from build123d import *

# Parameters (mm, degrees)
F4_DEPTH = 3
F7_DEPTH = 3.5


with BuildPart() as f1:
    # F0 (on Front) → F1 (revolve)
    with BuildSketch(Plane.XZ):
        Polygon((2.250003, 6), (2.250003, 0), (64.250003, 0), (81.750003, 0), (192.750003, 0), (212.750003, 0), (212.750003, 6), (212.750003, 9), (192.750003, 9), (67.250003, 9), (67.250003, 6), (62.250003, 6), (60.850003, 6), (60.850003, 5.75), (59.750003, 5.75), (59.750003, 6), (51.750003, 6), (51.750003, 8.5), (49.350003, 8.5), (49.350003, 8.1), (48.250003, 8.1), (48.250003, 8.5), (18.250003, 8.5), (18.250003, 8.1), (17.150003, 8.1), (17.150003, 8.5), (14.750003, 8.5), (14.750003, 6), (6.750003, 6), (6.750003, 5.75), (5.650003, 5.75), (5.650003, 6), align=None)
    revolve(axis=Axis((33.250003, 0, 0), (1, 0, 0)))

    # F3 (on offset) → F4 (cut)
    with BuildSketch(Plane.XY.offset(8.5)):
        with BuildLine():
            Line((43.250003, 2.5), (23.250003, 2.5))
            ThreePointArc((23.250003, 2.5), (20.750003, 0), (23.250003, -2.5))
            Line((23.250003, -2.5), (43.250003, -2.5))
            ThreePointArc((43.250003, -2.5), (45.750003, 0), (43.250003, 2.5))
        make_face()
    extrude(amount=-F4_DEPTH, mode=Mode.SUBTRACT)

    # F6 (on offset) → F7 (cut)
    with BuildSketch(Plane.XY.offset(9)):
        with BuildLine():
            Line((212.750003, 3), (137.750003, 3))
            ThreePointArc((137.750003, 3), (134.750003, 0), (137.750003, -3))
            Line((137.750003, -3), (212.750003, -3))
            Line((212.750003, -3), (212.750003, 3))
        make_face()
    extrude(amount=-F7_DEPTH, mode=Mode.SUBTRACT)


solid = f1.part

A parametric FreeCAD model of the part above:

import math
import FreeCAD as App
import Part
import Sketcher
from FreeCAD import Vector
Q = App.Units.Quantity


def add_polygon(sketch, points):
    """Adds a closed chain of lines whose ends are joined by coincident constraints."""
    first, n = sketch.GeometryCount, len(points)
    for a, b in zip(points, points[1:] + points[:1]):
        sketch.addGeometry(Part.LineSegment(App.Vector(*a, 0), App.Vector(*b, 0)), False)
    for i in range(n):
        sketch.addConstraint(Sketcher.Constraint("Coincident", first + i, 2, first + (i + 1) % n, 1))

doc = App.newDocument("Part")
body = doc.addObject("PartDesign::Body", "Body")

# Sketch on XZ plane
sketch1 = body.newObject("Sketcher::SketchObject", "Sketch")
sketch1.AttachmentSupport = (doc.getObject("XZ_Plane"), [""])
sketch1.MapMode = "FlatFace"
add_polygon(sketch1, [(2.250003, 6), (2.250003, 0), (212.750003, 0), (212.750003, 9), (67.250003, 9), (67.250003, 6), (60.850003, 6), (60.850003, 5.75), (59.750003, 5.75), (59.750003, 6), (51.750003, 6), (51.750003, 8.5), (49.350003, 8.5), (49.350003, 8.1), (48.250003, 8.1), (48.250003, 8.5), (18.250003, 8.5), (18.250003, 8.1), (17.150003, 8.1), (17.150003, 8.5), (14.750003, 8.5), (14.750003, 6), (6.750003, 6), (6.750003, 5.75), (5.650003, 5.75), (5.650003, 6)])  # lines 0-25
sketch1.addConstraint([
    Sketcher.Constraint("Vertical", 0),
    Sketcher.Constraint("Horizontal", 1),
    Sketcher.Constraint("Vertical", 2),
    Sketcher.Constraint("Horizontal", 3),
    Sketcher.Constraint("Vertical", 4),
    Sketcher.Constraint("Horizontal", 5),
    Sketcher.Constraint("Vertical", 6),
    Sketcher.Constraint("Horizontal", 7),
    Sketcher.Constraint("Vertical", 8),
    Sketcher.Constraint("Horizontal", 9),
    Sketcher.Constraint("Vertical", 10),
    Sketcher.Constraint("Horizontal", 11),
    Sketcher.Constraint("Vertical", 12),
    Sketcher.Constraint("Horizontal", 13),
    Sketcher.Constraint("Vertical", 14),
    Sketcher.Constraint("Horizontal", 15),
    Sketcher.Constraint("Vertical", 16),
    Sketcher.Constraint("Horizontal", 17),
    Sketcher.Constraint("Vertical", 18),
    Sketcher.Constraint("Horizontal", 19),
    Sketcher.Constraint("Vertical", 20),
    Sketcher.Constraint("Horizontal", 21),
    Sketcher.Constraint("Vertical", 22),
    Sketcher.Constraint("Horizontal", 23),
    Sketcher.Constraint("Vertical", 24),
    Sketcher.Constraint("Horizontal", 25),
    Sketcher.Constraint("PointOnObject", 0, 2, -1),
    Sketcher.Constraint("Horizontal", 5, 2, 8, 2),
    Sketcher.Constraint("Horizontal", 11, 2, 14, 2),
    Sketcher.Constraint("Horizontal", 13, 2, 16, 2),
    Sketcher.Constraint("Horizontal", 15, 2, 18, 2),
    Sketcher.Constraint("Horizontal", 9, 2, 20, 2),
    Sketcher.Constraint("Horizontal", 7, 2, 22, 2),
    Sketcher.Constraint("Horizontal", 21, 2, 24, 2),
    Sketcher.Constraint("Equal", 7, 13),
    Sketcher.Constraint("Equal", 13, 17),
    Sketcher.Constraint("Equal", 11, 19),
    Sketcher.Constraint("Equal", 9, 21),
    Sketcher.Constraint("Equal", 17, 23),
    Sketcher.Constraint("DistanceX", 9, 2, 9, 1, Q("8 mm")),
    Sketcher.Constraint("DistanceX", 15, 2, 15, 1, Q("30 mm")),
    Sketcher.Constraint("DistanceY", 0, 2, 0, 1, Q("6 mm")),
    Sketcher.Constraint("DistanceY", 2, 1, 2, 2, Q("9 mm")),
    Sketcher.Constraint("DistanceX", 1, 1, 1, 2, Q("210.5 mm")),
    Sketcher.Constraint("DistanceX", 3, 2, 3, 1, Q("145.5 mm")),
    Sketcher.Constraint("DistanceX", 5, 2, 5, 1, Q("6.4 mm")),
    Sketcher.Constraint("DistanceX", 7, 2, 7, 1, Q("1.1 mm")),
    Sketcher.Constraint("DistanceX", 11, 2, 11, 1, Q("2.4 mm")),
    Sketcher.Constraint("DistanceY", 10, 1, 10, 2, Q("2.5 mm")),
    Sketcher.Constraint("DistanceY", 12, 2, 12, 1, Q("0.4 mm")),
    Sketcher.Constraint("DistanceY", 6, 2, 6, 1, Q("0.25 mm")),
    Sketcher.Constraint("DistanceX", -1, 1, 0, 2, Q("2.250003 mm")),
])
revolution = body.newObject("PartDesign::Revolution", "Revolution")
revolution.Profile = sketch1
revolution.ReferenceAxis = (sketch1, ["H_Axis"])
revolution.Angle = 360

# Sketch on XY plane
sketch2 = body.newObject("Sketcher::SketchObject", "Sketch001")
sketch2.AttachmentSupport = (doc.getObject("XY_Plane"), [""])
sketch2.MapMode = "FlatFace"
sketch2.AttachmentOffset = App.Placement(Vector(0, 0, 8.5), App.Rotation())
sketch2.addGeometry([
    Part.LineSegment(Vector(43.250003, 2.5, 0), Vector(23.250003, 2.5, 0)),
    Part.ArcOfCircle(Part.Circle(Vector(23.250003, 0, 0), Vector(0, 0, 1), 2.5), math.radians(90), math.radians(270)),
    Part.LineSegment(Vector(23.250003, -2.5, 0), Vector(43.250003, -2.5, 0)),
    Part.ArcOfCircle(Part.Circle(Vector(43.250003, 0, 0), Vector(0, 0, 1), 2.5), math.radians(-90), math.radians(90)),
], False)
sketch2.addConstraint([
    Sketcher.Constraint("Tangent", 0, 2, 1, 1),
    Sketcher.Constraint("Tangent", 1, 2, 2, 1),
    Sketcher.Constraint("Tangent", 2, 2, 3, 1),
    Sketcher.Constraint("Tangent", 3, 2, 0, 1),
    Sketcher.Constraint("Horizontal", 0),
    Sketcher.Constraint("Horizontal", 2),
    Sketcher.Constraint("PointOnObject", 1, 3, -1),
    Sketcher.Constraint("Radius", 1, Q("2.5 mm")),
    Sketcher.Constraint("DistanceX", 0, 2, 0, 1, Q("20 mm")),
    Sketcher.Constraint("DistanceX", -1, 1, 1, 3, Q("23.250003 mm")),
])
pocket1 = body.newObject("PartDesign::Pocket", "Pocket")
pocket1.Profile = sketch2
pocket1.Length = 3

# Sketch on XY plane
sketch3 = body.newObject("Sketcher::SketchObject", "Sketch002")
sketch3.AttachmentSupport = (doc.getObject("XY_Plane"), [""])
sketch3.MapMode = "FlatFace"
sketch3.AttachmentOffset = App.Placement(Vector(0, 0, 9), App.Rotation())
sketch3.addGeometry([
    Part.LineSegment(Vector(212.750003, 3, 0), Vector(137.750003, 3, 0)),
    Part.ArcOfCircle(Part.Circle(Vector(137.750003, 0, 0), Vector(0, 0, 1), 3), math.radians(90), math.radians(270)),
    Part.LineSegment(Vector(137.750003, -3, 0), Vector(212.750003, -3, 0)),
    Part.LineSegment(Vector(212.750003, -3, 0), Vector(212.750003, 3, 0)),
], False)
sketch3.addConstraint([
    Sketcher.Constraint("Tangent", 0, 2, 1, 1),
    Sketcher.Constraint("Tangent", 1, 2, 2, 1),
    Sketcher.Constraint("Coincident", 2, 2, 3, 1),
    Sketcher.Constraint("Coincident", 3, 2, 0, 1),
    Sketcher.Constraint("Horizontal", 0),
    Sketcher.Constraint("Horizontal", 2),
    Sketcher.Constraint("Vertical", 3),
    Sketcher.Constraint("PointOnObject", 1, 3, -1),
    Sketcher.Constraint("Radius", 1, Q("3 mm")),
    Sketcher.Constraint("DistanceX", 0, 2, 0, 1, Q("75 mm")),
    Sketcher.Constraint("DistanceX", -1, 1, 1, 3, Q("137.750003 mm")),
])
pocket2 = body.newObject("PartDesign::Pocket", "Pocket001")
pocket2.Profile = sketch3
pocket2.Length = 3.5

doc.recompute()
